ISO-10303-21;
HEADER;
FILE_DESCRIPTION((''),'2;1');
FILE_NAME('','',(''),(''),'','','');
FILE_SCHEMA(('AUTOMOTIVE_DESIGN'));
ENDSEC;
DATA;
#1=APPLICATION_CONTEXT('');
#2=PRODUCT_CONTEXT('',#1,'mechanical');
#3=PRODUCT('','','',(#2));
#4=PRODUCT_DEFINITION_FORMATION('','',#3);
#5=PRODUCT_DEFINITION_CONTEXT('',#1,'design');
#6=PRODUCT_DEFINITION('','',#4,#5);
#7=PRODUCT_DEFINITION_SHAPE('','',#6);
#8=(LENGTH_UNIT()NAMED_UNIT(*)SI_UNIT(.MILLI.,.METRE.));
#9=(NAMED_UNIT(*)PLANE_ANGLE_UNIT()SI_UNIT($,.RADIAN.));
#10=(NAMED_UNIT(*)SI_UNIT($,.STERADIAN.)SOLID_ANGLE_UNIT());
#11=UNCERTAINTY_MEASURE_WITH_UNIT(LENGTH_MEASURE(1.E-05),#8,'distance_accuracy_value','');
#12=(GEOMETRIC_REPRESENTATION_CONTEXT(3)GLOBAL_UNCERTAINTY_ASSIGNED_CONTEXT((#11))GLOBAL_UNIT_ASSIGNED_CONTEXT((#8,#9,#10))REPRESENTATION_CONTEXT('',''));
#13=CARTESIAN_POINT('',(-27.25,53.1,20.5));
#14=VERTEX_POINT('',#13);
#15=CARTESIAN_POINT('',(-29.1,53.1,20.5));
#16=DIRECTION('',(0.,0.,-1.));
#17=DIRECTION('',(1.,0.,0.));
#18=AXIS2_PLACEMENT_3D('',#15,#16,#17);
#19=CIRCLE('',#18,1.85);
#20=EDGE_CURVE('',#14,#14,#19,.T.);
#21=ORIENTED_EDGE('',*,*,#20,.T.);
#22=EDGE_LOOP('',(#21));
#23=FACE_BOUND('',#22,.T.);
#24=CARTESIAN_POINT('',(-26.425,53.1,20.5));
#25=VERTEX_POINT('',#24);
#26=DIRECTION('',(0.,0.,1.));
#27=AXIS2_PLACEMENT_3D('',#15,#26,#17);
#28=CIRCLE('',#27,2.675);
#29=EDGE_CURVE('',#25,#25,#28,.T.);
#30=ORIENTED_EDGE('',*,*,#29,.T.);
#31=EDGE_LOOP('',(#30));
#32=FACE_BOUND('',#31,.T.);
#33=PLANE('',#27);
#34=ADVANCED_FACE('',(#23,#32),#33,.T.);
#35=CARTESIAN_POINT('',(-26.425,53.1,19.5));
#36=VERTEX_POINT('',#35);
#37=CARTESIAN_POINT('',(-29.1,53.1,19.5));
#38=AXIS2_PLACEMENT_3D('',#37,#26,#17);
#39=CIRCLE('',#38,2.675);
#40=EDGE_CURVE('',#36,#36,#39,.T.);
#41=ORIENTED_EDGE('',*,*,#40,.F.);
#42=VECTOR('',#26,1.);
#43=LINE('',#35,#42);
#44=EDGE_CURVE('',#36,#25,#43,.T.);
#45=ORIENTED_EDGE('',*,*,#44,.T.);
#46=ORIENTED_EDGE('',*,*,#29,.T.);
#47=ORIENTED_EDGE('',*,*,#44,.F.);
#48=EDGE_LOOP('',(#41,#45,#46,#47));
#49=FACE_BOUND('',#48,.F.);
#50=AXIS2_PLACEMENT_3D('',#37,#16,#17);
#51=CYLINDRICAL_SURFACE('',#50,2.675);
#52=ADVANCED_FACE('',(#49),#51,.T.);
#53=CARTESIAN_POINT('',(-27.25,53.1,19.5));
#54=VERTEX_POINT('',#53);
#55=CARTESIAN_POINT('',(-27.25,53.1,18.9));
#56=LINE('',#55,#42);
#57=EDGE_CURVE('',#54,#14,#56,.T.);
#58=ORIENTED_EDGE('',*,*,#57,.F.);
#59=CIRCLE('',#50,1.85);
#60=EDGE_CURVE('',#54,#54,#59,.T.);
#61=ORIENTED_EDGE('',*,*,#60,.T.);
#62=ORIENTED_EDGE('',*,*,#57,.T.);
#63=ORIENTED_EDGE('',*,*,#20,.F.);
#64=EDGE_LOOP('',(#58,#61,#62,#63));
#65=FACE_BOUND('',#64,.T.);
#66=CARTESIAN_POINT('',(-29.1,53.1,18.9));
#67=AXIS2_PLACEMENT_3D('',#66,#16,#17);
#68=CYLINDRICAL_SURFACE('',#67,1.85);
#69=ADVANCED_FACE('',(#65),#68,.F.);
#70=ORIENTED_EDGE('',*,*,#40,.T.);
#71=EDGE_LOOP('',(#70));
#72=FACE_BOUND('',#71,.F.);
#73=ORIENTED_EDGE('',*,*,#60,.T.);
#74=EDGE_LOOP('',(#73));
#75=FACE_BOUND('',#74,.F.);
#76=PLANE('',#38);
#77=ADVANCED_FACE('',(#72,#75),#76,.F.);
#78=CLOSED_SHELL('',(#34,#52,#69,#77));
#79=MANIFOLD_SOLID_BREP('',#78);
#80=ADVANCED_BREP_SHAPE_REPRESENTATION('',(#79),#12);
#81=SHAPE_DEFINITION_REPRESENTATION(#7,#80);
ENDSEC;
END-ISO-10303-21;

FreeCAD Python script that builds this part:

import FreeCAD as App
import Part
import Sketcher

V = App.Vector

doc = App.newDocument("Part")
body = doc.addObject("PartDesign::Body", "Body")

# Sketch on XY plane
sketch1 = body.newObject("Sketcher::SketchObject", "Sketch")
sketch1.AttachmentSupport = (doc.getObject("XY_Plane"), [""])
sketch1.MapMode = "FlatFace"
sketch1.AttachmentOffset = App.Placement(V(0, 0, 24.6), App.Rotation())
sketch1.addGeometry(Part.Circle(V(-29.1, 53.1, 0), V(0, 0, 1), 1.9), False)
sketch1.addConstraint(Sketcher.Constraint("Diameter", 0, 3.7))
sketch1.addConstraint(Sketcher.Constraint("DistanceX", 0, 3, -1, 1, 29.1))
sketch1.addConstraint(Sketcher.Constraint("DistanceY", -1, 1, 0, 3, 53.1))
pad1 = body.newObject("PartDesign::Pad", "Pad")
pad1.Profile = sketch1
pad1.Length = 3.5
body2 = doc.addObject("PartDesign::Body", "Body001")

# Sketch on XY plane
sketch2 = body2.newObject("Sketcher::SketchObject", "Sketch001")
sketch2.AttachmentSupport = (doc.getObject("XY_Plane001"), [""])
sketch2.MapMode = "FlatFace"
sketch2.AttachmentOffset = App.Placement(V(0, 0, 25.2), App.Rotation())
sketch2.addGeometry(Part.Circle(V(-29.1, 53.1, 0), V(0, 0, 1), 2.7), False)
sketch2.addConstraint(Sketcher.Constraint("Diameter", 0, 5.35))
sketch2.addConstraint(Sketcher.Constraint("DistanceX", 0, 3, -1, 1, 29.1))
sketch2.addConstraint(Sketcher.Constraint("DistanceY", -1, 1, 0, 3, 53.1))
pad2 = body2.newObject("PartDesign::Pad", "Pad001")
pad2.Profile = sketch2
pad2.Length = 1
doc.recompute()

boolean = body2.newObject("PartDesign::Boolean", "Boolean")
boolean.Type = "Cut"
boolean.addObjects([body])
body3 = doc.addObject("PartDesign::Body", "Body002")
doc.recompute()

body2.Placement = App.Placement(V(0, 0, -5.7), App.Rotation(V(0, 0, 1), 0))
boolean2 = body3.newObject("PartDesign::Boolean", "Boolean001")
boolean2.Type = "Fuse"
boolean2.addObjects([body2])

doc.recompute()
